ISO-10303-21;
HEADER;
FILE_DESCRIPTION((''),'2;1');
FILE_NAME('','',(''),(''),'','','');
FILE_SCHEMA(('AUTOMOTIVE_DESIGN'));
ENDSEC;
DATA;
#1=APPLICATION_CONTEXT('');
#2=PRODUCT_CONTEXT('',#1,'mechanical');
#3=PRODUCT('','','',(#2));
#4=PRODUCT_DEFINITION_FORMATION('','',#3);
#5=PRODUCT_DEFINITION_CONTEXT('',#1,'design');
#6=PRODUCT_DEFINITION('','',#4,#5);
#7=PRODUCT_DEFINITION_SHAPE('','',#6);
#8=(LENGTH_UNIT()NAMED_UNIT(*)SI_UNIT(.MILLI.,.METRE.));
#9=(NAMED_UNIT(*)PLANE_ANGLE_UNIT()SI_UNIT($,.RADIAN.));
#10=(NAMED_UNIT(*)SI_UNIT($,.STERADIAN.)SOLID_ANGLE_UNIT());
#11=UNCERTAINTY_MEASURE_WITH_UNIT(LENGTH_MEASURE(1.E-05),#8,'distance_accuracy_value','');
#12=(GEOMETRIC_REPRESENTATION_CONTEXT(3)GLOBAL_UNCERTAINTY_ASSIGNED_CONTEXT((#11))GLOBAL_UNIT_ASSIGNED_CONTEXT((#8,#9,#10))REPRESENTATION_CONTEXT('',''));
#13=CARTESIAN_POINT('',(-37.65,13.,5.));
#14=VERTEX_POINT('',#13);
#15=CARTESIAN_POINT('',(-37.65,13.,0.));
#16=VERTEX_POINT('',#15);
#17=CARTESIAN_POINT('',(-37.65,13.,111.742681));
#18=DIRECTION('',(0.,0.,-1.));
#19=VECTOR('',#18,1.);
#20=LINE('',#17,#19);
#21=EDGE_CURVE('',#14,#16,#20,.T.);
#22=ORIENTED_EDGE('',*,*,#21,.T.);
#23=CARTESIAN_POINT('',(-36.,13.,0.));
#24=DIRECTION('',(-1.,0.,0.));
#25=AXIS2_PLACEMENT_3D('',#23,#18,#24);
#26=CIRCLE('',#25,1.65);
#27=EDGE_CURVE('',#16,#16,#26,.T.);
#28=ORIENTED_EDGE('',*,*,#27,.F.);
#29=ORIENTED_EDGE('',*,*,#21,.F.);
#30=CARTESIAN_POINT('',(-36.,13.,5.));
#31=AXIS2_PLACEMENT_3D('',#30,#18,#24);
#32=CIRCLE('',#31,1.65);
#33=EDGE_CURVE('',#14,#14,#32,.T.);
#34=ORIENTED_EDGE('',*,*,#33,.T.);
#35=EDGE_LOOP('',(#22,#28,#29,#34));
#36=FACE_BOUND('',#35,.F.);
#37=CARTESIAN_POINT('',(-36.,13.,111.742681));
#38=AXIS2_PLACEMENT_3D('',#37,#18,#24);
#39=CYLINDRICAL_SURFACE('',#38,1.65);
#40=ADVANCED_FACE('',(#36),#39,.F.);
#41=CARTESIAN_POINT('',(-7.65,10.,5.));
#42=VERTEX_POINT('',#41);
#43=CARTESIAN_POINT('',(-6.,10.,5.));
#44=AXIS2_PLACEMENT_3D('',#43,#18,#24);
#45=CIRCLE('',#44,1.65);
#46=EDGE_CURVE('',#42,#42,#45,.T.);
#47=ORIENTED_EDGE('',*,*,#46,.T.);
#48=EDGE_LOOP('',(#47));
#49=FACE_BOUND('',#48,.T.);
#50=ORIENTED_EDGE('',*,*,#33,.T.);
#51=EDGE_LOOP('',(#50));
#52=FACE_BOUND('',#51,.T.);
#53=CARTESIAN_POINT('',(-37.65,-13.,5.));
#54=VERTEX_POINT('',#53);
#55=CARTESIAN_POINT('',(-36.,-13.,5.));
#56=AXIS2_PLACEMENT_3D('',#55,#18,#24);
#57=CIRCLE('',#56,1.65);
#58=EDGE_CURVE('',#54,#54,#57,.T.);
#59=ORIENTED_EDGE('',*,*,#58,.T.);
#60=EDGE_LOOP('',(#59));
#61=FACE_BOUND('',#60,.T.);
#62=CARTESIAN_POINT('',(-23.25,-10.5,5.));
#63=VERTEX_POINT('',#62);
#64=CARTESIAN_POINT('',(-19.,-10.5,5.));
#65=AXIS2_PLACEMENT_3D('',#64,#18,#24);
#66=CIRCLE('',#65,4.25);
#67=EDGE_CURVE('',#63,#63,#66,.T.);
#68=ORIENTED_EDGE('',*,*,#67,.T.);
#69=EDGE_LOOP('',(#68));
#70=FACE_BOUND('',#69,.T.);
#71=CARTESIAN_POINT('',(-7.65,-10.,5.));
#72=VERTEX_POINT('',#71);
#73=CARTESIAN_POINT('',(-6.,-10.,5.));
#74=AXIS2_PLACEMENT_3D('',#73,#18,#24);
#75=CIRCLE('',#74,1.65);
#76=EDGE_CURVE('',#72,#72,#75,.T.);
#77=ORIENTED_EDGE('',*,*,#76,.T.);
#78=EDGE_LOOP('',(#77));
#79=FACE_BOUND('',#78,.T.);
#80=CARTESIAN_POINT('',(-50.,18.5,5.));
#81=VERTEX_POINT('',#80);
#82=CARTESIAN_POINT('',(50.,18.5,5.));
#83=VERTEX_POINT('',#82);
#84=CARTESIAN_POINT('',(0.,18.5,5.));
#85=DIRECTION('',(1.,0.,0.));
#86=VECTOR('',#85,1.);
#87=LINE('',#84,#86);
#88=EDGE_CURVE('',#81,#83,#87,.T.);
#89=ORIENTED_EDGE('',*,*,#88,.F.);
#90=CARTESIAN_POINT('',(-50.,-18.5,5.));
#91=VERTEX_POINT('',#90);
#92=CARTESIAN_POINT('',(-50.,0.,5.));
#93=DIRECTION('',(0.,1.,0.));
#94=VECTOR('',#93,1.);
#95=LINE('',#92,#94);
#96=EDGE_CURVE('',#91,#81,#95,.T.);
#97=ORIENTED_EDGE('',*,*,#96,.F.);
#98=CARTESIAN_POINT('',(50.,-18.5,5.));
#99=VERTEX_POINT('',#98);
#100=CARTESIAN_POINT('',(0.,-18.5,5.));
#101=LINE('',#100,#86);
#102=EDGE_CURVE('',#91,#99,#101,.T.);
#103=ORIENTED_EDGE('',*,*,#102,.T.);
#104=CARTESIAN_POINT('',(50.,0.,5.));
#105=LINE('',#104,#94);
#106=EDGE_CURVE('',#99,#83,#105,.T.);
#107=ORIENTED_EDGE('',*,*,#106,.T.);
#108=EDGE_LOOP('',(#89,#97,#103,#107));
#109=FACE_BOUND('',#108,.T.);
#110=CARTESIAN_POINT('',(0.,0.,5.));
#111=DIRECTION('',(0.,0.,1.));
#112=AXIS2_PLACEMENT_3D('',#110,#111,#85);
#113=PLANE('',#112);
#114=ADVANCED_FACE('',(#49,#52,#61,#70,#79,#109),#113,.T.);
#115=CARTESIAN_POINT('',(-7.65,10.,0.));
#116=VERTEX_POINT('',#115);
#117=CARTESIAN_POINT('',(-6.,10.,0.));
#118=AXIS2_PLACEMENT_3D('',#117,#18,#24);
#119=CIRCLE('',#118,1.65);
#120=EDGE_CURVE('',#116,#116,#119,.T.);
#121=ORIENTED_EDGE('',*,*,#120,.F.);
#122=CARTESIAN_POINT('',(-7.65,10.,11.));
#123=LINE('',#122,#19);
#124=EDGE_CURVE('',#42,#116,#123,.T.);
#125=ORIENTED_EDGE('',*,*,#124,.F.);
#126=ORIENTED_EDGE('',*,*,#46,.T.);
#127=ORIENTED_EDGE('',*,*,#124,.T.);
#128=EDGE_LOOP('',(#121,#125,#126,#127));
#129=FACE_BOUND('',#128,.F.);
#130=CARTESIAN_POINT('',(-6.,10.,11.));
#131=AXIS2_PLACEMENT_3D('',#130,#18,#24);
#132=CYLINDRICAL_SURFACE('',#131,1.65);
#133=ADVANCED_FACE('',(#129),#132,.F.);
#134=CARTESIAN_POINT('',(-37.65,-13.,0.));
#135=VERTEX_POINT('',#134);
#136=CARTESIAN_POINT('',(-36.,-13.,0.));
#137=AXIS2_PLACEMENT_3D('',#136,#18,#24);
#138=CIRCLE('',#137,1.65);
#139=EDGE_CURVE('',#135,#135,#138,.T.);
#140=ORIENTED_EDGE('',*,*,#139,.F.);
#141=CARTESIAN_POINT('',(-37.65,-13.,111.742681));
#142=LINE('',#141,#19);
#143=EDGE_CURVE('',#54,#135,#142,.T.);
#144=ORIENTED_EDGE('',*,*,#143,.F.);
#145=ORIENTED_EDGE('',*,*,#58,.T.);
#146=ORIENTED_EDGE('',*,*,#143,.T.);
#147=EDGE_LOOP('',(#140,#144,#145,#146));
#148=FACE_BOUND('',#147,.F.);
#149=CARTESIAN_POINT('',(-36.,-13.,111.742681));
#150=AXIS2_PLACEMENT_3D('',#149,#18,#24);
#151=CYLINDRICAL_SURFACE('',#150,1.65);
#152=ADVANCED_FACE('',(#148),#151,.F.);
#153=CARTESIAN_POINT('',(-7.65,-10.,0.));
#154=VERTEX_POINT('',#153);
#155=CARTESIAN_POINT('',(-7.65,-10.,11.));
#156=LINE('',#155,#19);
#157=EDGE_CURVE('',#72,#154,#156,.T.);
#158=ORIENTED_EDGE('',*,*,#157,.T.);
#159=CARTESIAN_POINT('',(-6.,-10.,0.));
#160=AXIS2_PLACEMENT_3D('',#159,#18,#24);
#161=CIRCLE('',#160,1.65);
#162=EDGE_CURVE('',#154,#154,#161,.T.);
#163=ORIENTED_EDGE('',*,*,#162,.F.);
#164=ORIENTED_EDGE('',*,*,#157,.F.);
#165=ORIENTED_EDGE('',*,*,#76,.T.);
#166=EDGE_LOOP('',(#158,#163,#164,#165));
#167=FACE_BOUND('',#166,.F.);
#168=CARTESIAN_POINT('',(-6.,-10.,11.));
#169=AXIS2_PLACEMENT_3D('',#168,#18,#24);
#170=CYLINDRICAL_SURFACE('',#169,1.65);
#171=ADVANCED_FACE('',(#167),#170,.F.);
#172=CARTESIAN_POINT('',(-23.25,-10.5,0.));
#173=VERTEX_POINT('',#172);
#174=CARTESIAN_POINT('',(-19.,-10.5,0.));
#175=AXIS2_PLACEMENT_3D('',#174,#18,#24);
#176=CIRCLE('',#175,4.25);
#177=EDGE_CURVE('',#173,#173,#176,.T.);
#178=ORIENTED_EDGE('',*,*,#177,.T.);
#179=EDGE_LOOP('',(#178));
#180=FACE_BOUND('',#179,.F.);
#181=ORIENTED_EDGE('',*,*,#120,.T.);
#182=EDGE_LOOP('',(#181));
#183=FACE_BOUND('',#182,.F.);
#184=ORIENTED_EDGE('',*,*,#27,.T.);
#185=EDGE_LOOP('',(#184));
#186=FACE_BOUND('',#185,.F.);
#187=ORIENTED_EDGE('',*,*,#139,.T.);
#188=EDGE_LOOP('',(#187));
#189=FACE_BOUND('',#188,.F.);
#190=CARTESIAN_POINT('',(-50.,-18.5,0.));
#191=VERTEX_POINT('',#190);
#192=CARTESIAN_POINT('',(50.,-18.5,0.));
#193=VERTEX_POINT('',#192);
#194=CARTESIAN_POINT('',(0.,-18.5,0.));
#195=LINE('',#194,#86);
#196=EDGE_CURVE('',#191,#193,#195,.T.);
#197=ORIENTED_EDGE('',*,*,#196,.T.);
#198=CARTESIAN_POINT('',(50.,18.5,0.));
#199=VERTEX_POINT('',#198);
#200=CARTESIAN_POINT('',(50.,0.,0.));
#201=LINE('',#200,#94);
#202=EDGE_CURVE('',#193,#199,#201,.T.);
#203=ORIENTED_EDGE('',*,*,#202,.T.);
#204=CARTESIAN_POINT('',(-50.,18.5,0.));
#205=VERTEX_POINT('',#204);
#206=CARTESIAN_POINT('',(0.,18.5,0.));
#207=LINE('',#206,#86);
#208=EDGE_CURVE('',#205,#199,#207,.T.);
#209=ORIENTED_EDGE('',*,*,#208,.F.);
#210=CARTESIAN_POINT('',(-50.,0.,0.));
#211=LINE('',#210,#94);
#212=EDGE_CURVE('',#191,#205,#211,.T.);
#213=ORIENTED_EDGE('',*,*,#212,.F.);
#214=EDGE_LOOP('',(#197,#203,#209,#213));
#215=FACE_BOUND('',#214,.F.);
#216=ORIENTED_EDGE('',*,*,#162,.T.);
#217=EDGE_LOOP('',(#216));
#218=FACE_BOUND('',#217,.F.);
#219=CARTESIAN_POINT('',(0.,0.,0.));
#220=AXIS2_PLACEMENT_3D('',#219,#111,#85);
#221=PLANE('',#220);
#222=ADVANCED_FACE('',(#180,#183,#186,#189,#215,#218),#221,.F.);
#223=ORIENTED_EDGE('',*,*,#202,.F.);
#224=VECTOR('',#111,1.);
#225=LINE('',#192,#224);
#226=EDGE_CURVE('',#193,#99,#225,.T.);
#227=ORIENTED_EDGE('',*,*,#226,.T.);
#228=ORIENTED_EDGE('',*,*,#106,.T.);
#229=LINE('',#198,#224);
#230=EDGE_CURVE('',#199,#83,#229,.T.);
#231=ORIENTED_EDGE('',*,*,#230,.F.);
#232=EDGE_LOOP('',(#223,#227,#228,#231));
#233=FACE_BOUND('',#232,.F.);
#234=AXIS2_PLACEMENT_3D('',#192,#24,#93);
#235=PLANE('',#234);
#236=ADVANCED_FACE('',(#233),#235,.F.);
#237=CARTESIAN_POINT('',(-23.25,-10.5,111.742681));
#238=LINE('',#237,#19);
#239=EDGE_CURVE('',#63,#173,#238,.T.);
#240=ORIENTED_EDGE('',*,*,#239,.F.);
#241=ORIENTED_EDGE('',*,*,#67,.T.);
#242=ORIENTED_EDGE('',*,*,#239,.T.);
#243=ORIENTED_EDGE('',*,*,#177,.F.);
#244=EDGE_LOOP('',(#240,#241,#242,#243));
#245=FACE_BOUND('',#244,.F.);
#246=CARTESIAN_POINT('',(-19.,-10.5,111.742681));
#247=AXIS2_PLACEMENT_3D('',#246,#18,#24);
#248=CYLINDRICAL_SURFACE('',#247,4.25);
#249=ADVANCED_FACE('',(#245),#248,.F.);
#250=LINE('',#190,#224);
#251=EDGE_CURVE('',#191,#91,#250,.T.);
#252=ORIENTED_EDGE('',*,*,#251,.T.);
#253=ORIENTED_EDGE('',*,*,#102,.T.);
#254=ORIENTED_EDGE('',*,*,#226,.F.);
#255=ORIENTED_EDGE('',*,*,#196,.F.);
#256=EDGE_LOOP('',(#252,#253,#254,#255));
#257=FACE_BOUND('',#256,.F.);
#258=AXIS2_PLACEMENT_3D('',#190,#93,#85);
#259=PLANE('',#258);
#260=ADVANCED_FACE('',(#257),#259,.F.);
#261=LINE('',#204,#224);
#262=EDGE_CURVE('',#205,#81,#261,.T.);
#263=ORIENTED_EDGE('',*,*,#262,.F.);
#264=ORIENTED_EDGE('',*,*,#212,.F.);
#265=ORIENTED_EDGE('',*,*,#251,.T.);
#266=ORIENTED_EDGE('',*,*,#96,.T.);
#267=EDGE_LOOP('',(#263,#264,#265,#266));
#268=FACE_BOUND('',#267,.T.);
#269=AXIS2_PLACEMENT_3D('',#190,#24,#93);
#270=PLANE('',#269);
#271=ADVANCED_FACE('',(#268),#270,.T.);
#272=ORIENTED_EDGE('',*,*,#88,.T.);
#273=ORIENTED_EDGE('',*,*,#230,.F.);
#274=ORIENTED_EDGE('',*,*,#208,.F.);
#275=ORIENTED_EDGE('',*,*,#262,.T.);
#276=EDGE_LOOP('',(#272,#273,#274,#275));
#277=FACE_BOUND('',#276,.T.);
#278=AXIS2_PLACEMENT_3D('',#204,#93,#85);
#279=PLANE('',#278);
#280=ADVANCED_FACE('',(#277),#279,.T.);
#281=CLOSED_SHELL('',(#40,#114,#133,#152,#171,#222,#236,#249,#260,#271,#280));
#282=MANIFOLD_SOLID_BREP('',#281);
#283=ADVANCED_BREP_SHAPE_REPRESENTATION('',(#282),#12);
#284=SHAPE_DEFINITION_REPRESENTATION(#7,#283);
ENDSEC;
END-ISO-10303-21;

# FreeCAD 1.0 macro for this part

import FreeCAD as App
import Part
import Sketcher

V = App.Vector


def add_polygon(sketch, points):
    """Adds a closed chain of lines whose ends are joined by coincident constraints."""
    first, n = sketch.GeometryCount, len(points)
    for a, b in zip(points, points[1:] + points[:1]):
        sketch.addGeometry(Part.LineSegment(App.Vector(*a, 0), App.Vector(*b, 0)), False)
    for i in range(n):
        sketch.addConstraint(Sketcher.Constraint("Coincident", first + i, 2, first + (i + 1) % n, 1))

doc = App.newDocument("Part")
body = doc.addObject("PartDesign::Body", "Body")

# Sketch on XY plane
sketch1 = body.newObject("Sketcher::SketchObject", "Sketch")
sketch1.AttachmentSupport = (doc.getObject("XY_Plane"), [""])
sketch1.MapMode = "FlatFace"
add_polygon(sketch1, [(-50, 18.5), (-50, -18.5), (50, -18.5), (50, 18.5)])  # lines 0-3
sketch1.addConstraint(Sketcher.Constraint("Vertical", 0))
sketch1.addConstraint(Sketcher.Constraint("Horizontal", 1))
sketch1.addConstraint(Sketcher.Constraint("Vertical", 2))
sketch1.addConstraint(Sketcher.Constraint("Horizontal", 3))
sketch1.addConstraint(Sketcher.Constraint("Symmetric", 0, 2, 2, 2, -1, 1))
sketch1.addConstraint(Sketcher.Constraint("DistanceX", 1, 1, 1, 2, 100.0))
sketch1.addConstraint(Sketcher.Constraint("DistanceY", 0, 2, 0, 1, 37.0))
pad1 = body.newObject("PartDesign::Pad", "Pad")
pad1.Profile = sketch1
pad1.Length = 5

# Sketch on XY plane
sketch2 = body.newObject("Sketcher::SketchObject", "Sketch001")
sketch2.AttachmentSupport = (doc.getObject("XY_Plane"), [""])
sketch2.MapMode = "FlatFace"
sketch2.AttachmentOffset = App.Placement(V(0, 0, 5), App.Rotation())
sketch2.addGeometry(Part.Circle(V(-36, 13, 0), V(0, 0, 1), 1.65), False)
sketch2.addGeometry(Part.Circle(V(-36, -13, 0), V(0, 0, 1), 1.65), False)
sketch2.addConstraint(Sketcher.Constraint("Equal", 0, 1))
sketch2.addConstraint(Sketcher.Constraint("Symmetric", 0, 3, 1, 3, -1))
sketch2.addConstraint(Sketcher.Constraint("Diameter", 0, 3.3))
sketch2.addConstraint(Sketcher.Constraint("DistanceX", 0, 3, -1, 1, 36.0))
sketch2.addConstraint(Sketcher.Constraint("DistanceY", -1, 1, 0, 3, 13.0))
doc.recompute()
hole = body.newObject("PartDesign::Hole", "Hole")
hole.Profile = sketch2
hole.ThreadType = "None"
hole.Diameter = 3.3
hole.DepthType = "ThroughAll"

# Sketch on XY plane
sketch3 = body.newObject("Sketcher::SketchObject", "Sketch002")
sketch3.AttachmentSupport = (doc.getObject("XY_Plane"), [""])
sketch3.MapMode = "FlatFace"
sketch3.AttachmentOffset = App.Placement(V(0, 0, 5), App.Rotation())
sketch3.addGeometry(Part.Circle(V(-19, -10.5, 0), V(0, 0, 1), 4.25), False)
sketch3.addConstraint(Sketcher.Constraint("Diameter", 0, 8.5))
sketch3.addConstraint(Sketcher.Constraint("DistanceX", 0, 3, -1, 1, 19.0))
sketch3.addConstraint(Sketcher.Constraint("DistanceY", 0, 3, -1, 1, 10.5))
doc.recompute()
hole2 = body.newObject("PartDesign::Hole", "Hole001")
hole2.Profile = sketch3
hole2.ThreadType = "None"
hole2.Diameter = 8.5
hole2.DepthType = "ThroughAll"

# Sketch on XY plane
sketch4 = body.newObject("Sketcher::SketchObject", "Sketch003")
sketch4.AttachmentSupport = (doc.getObject("XY_Plane"), [""])
sketch4.MapMode = "FlatFace"
sketch4.AttachmentOffset = App.Placement(V(0, 0, 5), App.Rotation())
sketch4.addGeometry(Part.Circle(V(-6, 10, 0), V(0, 0, 1), 1.65), False)
sketch4.addGeometry(Part.Circle(V(-6, -10, 0), V(0, 0, 1), 1.65), False)
sketch4.addConstraint(Sketcher.Constraint("Equal", 0, 1))
sketch4.addConstraint(Sketcher.Constraint("Symmetric", 0, 3, 1, 3, -1))
sketch4.addConstraint(Sketcher.Constraint("Diameter", 0, 3.3))
sketch4.addConstraint(Sketcher.Constraint("DistanceX", 0, 3, -1, 1, 6.0))
sketch4.addConstraint(Sketcher.Constraint("DistanceY", -1, 1, 0, 3, 10.0))
doc.recompute()
hole3 = body.newObject("PartDesign::Hole", "Hole002")
hole3.Profile = sketch4
hole3.ThreadType = "None"
hole3.Diameter = 3.3
hole3.DepthType = "Dimension"
hole3.Depth = 6
hole3.DrillPoint = "Angled"
hole3.DrillPointAngle = 118

doc.recompute()
